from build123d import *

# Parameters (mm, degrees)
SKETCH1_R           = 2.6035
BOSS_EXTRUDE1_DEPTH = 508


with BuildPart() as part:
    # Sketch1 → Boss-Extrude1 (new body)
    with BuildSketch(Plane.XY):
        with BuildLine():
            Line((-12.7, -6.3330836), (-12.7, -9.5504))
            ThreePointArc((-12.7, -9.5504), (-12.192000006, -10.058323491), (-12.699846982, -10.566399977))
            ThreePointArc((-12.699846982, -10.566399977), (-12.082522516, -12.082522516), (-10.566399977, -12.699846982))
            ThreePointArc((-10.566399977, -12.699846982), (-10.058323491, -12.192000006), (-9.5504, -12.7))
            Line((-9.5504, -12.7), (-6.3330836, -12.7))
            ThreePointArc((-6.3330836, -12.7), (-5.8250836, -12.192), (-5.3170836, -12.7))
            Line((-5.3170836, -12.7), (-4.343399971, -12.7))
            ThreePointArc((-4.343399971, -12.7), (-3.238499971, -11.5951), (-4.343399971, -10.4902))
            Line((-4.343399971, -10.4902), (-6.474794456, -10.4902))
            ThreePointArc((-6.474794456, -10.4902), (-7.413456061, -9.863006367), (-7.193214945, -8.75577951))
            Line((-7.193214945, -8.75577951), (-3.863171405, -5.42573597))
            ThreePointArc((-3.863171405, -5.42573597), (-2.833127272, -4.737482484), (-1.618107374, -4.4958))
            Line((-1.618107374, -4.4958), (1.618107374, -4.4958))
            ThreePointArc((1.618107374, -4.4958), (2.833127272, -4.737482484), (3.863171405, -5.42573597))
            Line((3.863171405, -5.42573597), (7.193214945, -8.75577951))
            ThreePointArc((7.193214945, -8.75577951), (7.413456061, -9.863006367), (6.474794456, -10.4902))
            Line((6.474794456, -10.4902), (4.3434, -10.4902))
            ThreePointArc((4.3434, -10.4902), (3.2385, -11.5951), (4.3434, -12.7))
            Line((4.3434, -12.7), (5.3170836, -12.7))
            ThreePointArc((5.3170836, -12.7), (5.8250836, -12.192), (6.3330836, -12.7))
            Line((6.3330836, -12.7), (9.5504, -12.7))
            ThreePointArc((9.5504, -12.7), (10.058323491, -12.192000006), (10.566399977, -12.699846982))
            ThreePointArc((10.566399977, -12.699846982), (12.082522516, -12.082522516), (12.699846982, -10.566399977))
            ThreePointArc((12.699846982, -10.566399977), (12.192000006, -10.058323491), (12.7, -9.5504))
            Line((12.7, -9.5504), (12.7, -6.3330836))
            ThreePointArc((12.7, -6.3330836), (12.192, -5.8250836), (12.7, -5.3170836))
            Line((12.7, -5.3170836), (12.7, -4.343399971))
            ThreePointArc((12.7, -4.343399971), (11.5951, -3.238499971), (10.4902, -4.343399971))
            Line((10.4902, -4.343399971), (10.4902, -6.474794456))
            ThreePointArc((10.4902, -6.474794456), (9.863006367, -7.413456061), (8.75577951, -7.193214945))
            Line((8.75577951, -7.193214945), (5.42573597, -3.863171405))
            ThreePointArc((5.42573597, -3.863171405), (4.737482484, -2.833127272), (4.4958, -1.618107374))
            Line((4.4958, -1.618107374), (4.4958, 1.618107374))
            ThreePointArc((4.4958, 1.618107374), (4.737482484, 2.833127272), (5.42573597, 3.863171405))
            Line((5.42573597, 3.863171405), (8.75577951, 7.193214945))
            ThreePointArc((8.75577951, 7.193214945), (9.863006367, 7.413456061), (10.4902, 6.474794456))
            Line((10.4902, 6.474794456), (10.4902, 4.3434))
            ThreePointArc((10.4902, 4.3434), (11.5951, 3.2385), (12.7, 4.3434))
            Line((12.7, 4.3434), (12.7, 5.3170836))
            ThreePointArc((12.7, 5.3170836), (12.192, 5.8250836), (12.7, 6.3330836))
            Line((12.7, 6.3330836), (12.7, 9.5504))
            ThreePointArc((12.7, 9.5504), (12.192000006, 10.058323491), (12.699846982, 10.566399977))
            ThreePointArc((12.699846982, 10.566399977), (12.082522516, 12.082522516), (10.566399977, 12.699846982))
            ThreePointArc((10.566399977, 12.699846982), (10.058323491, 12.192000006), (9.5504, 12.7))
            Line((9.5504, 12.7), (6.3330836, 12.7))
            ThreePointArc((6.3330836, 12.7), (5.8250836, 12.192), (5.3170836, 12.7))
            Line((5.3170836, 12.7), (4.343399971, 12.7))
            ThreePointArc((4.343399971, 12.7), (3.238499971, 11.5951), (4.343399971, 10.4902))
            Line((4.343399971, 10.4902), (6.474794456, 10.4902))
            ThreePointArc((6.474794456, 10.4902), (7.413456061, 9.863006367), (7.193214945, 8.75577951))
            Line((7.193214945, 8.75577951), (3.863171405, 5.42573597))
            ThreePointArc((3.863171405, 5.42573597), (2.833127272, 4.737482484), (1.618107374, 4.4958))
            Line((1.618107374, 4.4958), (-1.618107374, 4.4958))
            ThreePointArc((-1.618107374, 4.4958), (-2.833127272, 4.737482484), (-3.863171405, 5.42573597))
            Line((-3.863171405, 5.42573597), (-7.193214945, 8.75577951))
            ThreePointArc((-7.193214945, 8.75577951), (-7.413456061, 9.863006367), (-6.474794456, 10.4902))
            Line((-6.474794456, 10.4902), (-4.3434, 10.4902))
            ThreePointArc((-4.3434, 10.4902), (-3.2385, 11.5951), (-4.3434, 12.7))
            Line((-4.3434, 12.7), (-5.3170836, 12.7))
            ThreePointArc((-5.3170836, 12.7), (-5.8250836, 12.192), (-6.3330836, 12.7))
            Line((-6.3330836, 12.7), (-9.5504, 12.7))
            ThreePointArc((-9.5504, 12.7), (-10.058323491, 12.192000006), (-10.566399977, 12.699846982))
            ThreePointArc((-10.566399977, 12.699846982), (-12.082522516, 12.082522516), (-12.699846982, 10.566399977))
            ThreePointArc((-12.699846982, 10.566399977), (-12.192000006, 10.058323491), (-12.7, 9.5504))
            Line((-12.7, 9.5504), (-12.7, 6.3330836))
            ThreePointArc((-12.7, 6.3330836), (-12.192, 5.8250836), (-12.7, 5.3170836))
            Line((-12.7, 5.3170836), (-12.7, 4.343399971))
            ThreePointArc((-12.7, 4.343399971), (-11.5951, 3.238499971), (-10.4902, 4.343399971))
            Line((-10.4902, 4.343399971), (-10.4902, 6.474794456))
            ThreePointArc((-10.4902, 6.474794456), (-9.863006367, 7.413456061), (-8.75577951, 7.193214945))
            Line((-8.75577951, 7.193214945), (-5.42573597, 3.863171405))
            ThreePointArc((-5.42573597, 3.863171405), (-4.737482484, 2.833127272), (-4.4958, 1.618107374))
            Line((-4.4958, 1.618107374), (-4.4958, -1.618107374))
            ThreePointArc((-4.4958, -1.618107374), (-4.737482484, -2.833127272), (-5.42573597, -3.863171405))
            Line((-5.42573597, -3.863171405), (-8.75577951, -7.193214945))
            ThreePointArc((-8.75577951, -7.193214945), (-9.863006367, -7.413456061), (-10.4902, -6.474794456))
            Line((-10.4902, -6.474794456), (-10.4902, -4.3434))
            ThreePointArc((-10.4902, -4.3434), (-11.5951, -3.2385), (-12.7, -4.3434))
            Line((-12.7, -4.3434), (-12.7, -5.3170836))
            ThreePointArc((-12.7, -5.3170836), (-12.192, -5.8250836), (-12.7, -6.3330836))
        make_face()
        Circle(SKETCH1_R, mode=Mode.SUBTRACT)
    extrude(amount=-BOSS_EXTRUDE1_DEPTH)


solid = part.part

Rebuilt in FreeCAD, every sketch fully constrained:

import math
import FreeCAD as App
import Part
import Sketcher
Q = App.Units.Quantity

doc = App.newDocument("Part")
body = doc.addObject("PartDesign::Body", "Body")

# Sketch on XY plane
sketch1 = body.newObject("Sketcher::SketchObject", "Sketch")
sketch1.AttachmentSupport = (doc.getObject("XY_Plane"), [""])
sketch1.MapMode = "FlatFace"
sketch1.addGeometry([
    Part.LineSegment(App.Vector(-12.7, -6.3, 0), App.Vector(-12.7, -9.6, 0)),  # 0
    Part.ArcOfCircle(Part.Circle(App.Vector(-12.7, -10.1, 0), App.Vector(0, 0, 1), 0.5), math.radians(-90), math.radians(90)),  # 1
    Part.ArcOfCircle(Part.Circle(App.Vector(-10.6, -10.6, 0), App.Vector(0, 0, 1), 2.1), math.radians(179), math.radians(271)),  # 2
    Part.ArcOfCircle(Part.Circle(App.Vector(-10.1, -12.7, 0), App.Vector(0, 0, 1), 0.5), math.radians(0), math.radians(180)),  # 3
    Part.LineSegment(App.Vector(-9.6, -12.7, 0), App.Vector(-6.3, -12.7, 0)),  # 4
    Part.ArcOfCircle(Part.Circle(App.Vector(-5.8, -12.7, 0), App.Vector(0, 0, 1), 0.5), math.radians(0), math.radians(180)),  # 5
    Part.LineSegment(App.Vector(-5.3, -12.7, 0), App.Vector(-4.3, -12.7, 0)),  # 6
    Part.ArcOfCircle(Part.Circle(App.Vector(-4.3, -11.6, 0), App.Vector(0, 0, 1), 1.1), math.radians(-90), math.radians(90)),  # 7
    Part.LineSegment(App.Vector(-4.3, -10.5, 0), App.Vector(-6.5, -10.5, 0)),  # 8
    Part.ArcOfCircle(Part.Circle(App.Vector(-6.5, -9.5, 0), App.Vector(0, 0, 1), 1), math.radians(135), math.radians(270)),  # 9
    Part.LineSegment(App.Vector(-7.2, -8.8, 0), App.Vector(-3.9, -5.4, 0)),  # 10
    Part.ArcOfCircle(Part.Circle(App.Vector(-1.6, -7.7, 0), App.Vector(0, 0, 1), 3.2), math.radians(90), math.radians(135)),  # 11
    Part.LineSegment(App.Vector(-1.6, -4.5, 0), App.Vector(1.6, -4.5, 0)),  # 12
    Part.ArcOfCircle(Part.Circle(App.Vector(1.6, -7.7, 0), App.Vector(0, 0, 1), 3.2), math.radians(45), math.radians(90)),  # 13
    Part.LineSegment(App.Vector(3.9, -5.4, 0), App.Vector(7.2, -8.8, 0)),  # 14
    Part.ArcOfCircle(Part.Circle(App.Vector(6.5, -9.5, 0), App.Vector(0, 0, 1), 1), math.radians(-90), math.radians(45)),  # 15
    Part.LineSegment(App.Vector(6.5, -10.5, 0), App.Vector(4.3, -10.5, 0)),  # 16
    Part.ArcOfCircle(Part.Circle(App.Vector(4.3, -11.6, 0), App.Vector(0, 0, 1), 1.1), math.radians(90), math.radians(270)),  # 17
    Part.LineSegment(App.Vector(4.3, -12.7, 0), App.Vector(5.3, -12.7, 0)),  # 18
    Part.ArcOfCircle(Part.Circle(App.Vector(5.8, -12.7, 0), App.Vector(0, 0, 1), 0.5), math.radians(0), math.radians(180)),  # 19
    Part.LineSegment(App.Vector(6.3, -12.7, 0), App.Vector(9.6, -12.7, 0)),  # 20
    Part.ArcOfCircle(Part.Circle(App.Vector(10.1, -12.7, 0), App.Vector(0, 0, 1), 0.5), math.radians(0), math.radians(180)),  # 21
    Part.ArcOfCircle(Part.Circle(App.Vector(10.6, -10.6, 0), App.Vector(0, 0, 1), 2.1), math.radians(-91), math.radians(1)),  # 22
    Part.ArcOfCircle(Part.Circle(App.Vector(12.7, -10.1, 0), App.Vector(0, 0, 1), 0.5), math.radians(90), math.radians(270)),  # 23
    Part.LineSegment(App.Vector(12.7, -9.6, 0), App.Vector(12.7, -6.3, 0)),  # 24
    Part.ArcOfCircle(Part.Circle(App.Vector(12.7, -5.8, 0), App.Vector(0, 0, 1), 0.5), math.radians(90), math.radians(270)),  # 25
    Part.LineSegment(App.Vector(12.7, -5.3, 0), App.Vector(12.7, -4.3, 0)),  # 26
    Part.ArcOfCircle(Part.Circle(App.Vector(11.6, -4.3, 0), App.Vector(0, 0, 1), 1.1), math.radians(0), math.radians(180)),  # 27
    Part.LineSegment(App.Vector(10.5, -4.3, 0), App.Vector(10.5, -6.5, 0)),  # 28
    Part.ArcOfCircle(Part.Circle(App.Vector(9.5, -6.5, 0), App.Vector(0, 0, 1), 1), math.radians(-135), math.radians(0)),  # 29
    Part.LineSegment(App.Vector(8.8, -7.2, 0), App.Vector(5.4, -3.9, 0)),  # 30
    Part.ArcOfCircle(Part.Circle(App.Vector(7.7, -1.6, 0), App.Vector(0, 0, 1), 3.2), math.radians(180), math.radians(225)),  # 31
    Part.LineSegment(App.Vector(4.5, -1.6, 0), App.Vector(4.5, 1.6, 0)),  # 32
    Part.ArcOfCircle(Part.Circle(App.Vector(7.7, 1.6, 0), App.Vector(0, 0, 1), 3.2), math.radians(135), math.radians(180)),  # 33
    Part.LineSegment(App.Vector(5.4, 3.9, 0), App.Vector(8.8, 7.2, 0)),  # 34
    Part.ArcOfCircle(Part.Circle(App.Vector(9.5, 6.5, 0), App.Vector(0, 0, 1), 1), math.radians(0), math.radians(135)),  # 35
    Part.LineSegment(App.Vector(10.5, 6.5, 0), App.Vector(10.5, 4.3, 0)),  # 36
    Part.ArcOfCircle(Part.Circle(App.Vector(11.6, 4.3, 0), App.Vector(0, 0, 1), 1.1), math.radians(180), math.radians(360)),  # 37
    Part.LineSegment(App.Vector(12.7, 4.3, 0), App.Vector(12.7, 5.3, 0)),  # 38
    Part.ArcOfCircle(Part.Circle(App.Vector(12.7, 5.8, 0), App.Vector(0, 0, 1), 0.5), math.radians(90), math.radians(270)),  # 39
    Part.LineSegment(App.Vector(12.7, 6.3, 0), App.Vector(12.7, 9.6, 0)),  # 40
    Part.ArcOfCircle(Part.Circle(App.Vector(12.7, 10.1, 0), App.Vector(0, 0, 1), 0.5), math.radians(90), math.radians(270)),  # 41
    Part.ArcOfCircle(Part.Circle(App.Vector(10.6, 10.6, 0), App.Vector(0, 0, 1), 2.1), math.radians(-1), math.radians(91)),  # 42
    Part.ArcOfCircle(Part.Circle(App.Vector(10.1, 12.7, 0), App.Vector(0, 0, 1), 0.5), math.radians(180), math.radians(360)),  # 43
    Part.LineSegment(App.Vector(9.6, 12.7, 0), App.Vector(6.3, 12.7, 0)),  # 44
    Part.ArcOfCircle(Part.Circle(App.Vector(5.8, 12.7, 0), App.Vector(0, 0, 1), 0.5), math.radians(180), math.radians(360)),  # 45
    Part.LineSegment(App.Vector(5.3, 12.7, 0), App.Vector(4.3, 12.7, 0)),  # 46
    Part.ArcOfCircle(Part.Circle(App.Vector(4.3, 11.6, 0), App.Vector(0, 0, 1), 1.1), math.radians(90), math.radians(270)),  # 47
    Part.LineSegment(App.Vector(4.3, 10.5, 0), App.Vector(6.5, 10.5, 0)),  # 48
    Part.ArcOfCircle(Part.Circle(App.Vector(6.5, 9.5, 0), App.Vector(0, 0, 1), 1), math.radians(-45), math.radians(90)),  # 49
    Part.LineSegment(App.Vector(7.2, 8.8, 0), App.Vector(3.9, 5.4, 0)),  # 50
    Part.ArcOfCircle(Part.Circle(App.Vector(1.6, 7.7, 0), App.Vector(0, 0, 1), 3.2), math.radians(-90), math.radians(-45)),  # 51
    Part.LineSegment(App.Vector(1.6, 4.5, 0), App.Vector(-1.6, 4.5, 0)),  # 52
    Part.ArcOfCircle(Part.Circle(App.Vector(-1.6, 7.7, 0), App.Vector(0, 0, 1), 3.2), math.radians(-135), math.radians(-90)),  # 53
    Part.LineSegment(App.Vector(-3.9, 5.4, 0), App.Vector(-7.2, 8.8, 0)),  # 54
    Part.ArcOfCircle(Part.Circle(App.Vector(-6.5, 9.5, 0), App.Vector(0, 0, 1), 1), math.radians(90), math.radians(225)),  # 55
    Part.LineSegment(App.Vector(-6.5, 10.5, 0), App.Vector(-4.3, 10.5, 0)),  # 56
    Part.ArcOfCircle(Part.Circle(App.Vector(-4.3, 11.6, 0), App.Vector(0, 0, 1), 1.1), math.radians(-90), math.radians(90)),  # 57
    Part.LineSegment(App.Vector(-4.3, 12.7, 0), App.Vector(-5.3, 12.7, 0)),  # 58
    Part.ArcOfCircle(Part.Circle(App.Vector(-5.8, 12.7, 0), App.Vector(0, 0, 1), 0.5), math.radians(180), math.radians(360)),  # 59
    Part.LineSegment(App.Vector(-6.3, 12.7, 0), App.Vector(-9.6, 12.7, 0)),  # 60
    Part.ArcOfCircle(Part.Circle(App.Vector(-10.1, 12.7, 0), App.Vector(0, 0, 1), 0.5), math.radians(-180), math.radians(0)),  # 61
    Part.ArcOfCircle(Part.Circle(App.Vector(-10.6, 10.6, 0), App.Vector(0, 0, 1), 2.1), math.radians(89), math.radians(181)),  # 62
    Part.ArcOfCircle(Part.Circle(App.Vector(-12.7, 10.1, 0), App.Vector(0, 0, 1), 0.5), math.radians(-90), math.radians(90)),  # 63
    Part.LineSegment(App.Vector(-12.7, 9.6, 0), App.Vector(-12.7, 6.3, 0)),  # 64
    Part.ArcOfCircle(Part.Circle(App.Vector(-12.7, 5.8, 0), App.Vector(0, 0, 1), 0.5), math.radians(-90), math.radians(90)),  # 65
    Part.LineSegment(App.Vector(-12.7, 5.3, 0), App.Vector(-12.7, 4.3, 0)),  # 66
    Part.ArcOfCircle(Part.Circle(App.Vector(-11.6, 4.3, 0), App.Vector(0, 0, 1), 1.1), math.radians(180), math.radians(360)),  # 67
    Part.LineSegment(App.Vector(-10.5, 4.3, 0), App.Vector(-10.5, 6.5, 0)),  # 68
    Part.ArcOfCircle(Part.Circle(App.Vector(-9.5, 6.5, 0), App.Vector(0, 0, 1), 1), math.radians(45), math.radians(180)),  # 69
    Part.LineSegment(App.Vector(-8.8, 7.2, 0), App.Vector(-5.4, 3.9, 0)),  # 70
    Part.ArcOfCircle(Part.Circle(App.Vector(-7.7, 1.6, 0), App.Vector(0, 0, 1), 3.2), math.radians(0), math.radians(45)),  # 71
    Part.LineSegment(App.Vector(-4.5, 1.6, 0), App.Vector(-4.5, -1.6, 0)),  # 72
    Part.ArcOfCircle(Part.Circle(App.Vector(-7.7, -1.6, 0), App.Vector(0, 0, 1), 3.2), math.radians(-45), math.radians(0)),  # 73
    Part.LineSegment(App.Vector(-5.4, -3.9, 0), App.Vector(-8.8, -7.2, 0)),  # 74
    Part.ArcOfCircle(Part.Circle(App.Vector(-9.5, -6.5, 0), App.Vector(0, 0, 1), 1), math.radians(180), math.radians(315)),  # 75
    Part.LineSegment(App.Vector(-10.5, -6.5, 0), App.Vector(-10.5, -4.3, 0)),  # 76
    Part.ArcOfCircle(Part.Circle(App.Vector(-11.6, -4.3, 0), App.Vector(0, 0, 1), 1.1), math.radians(0), math.radians(180)),  # 77
    Part.LineSegment(App.Vector(-12.7, -4.3, 0), App.Vector(-12.7, -5.3, 0)),  # 78
    Part.ArcOfCircle(Part.Circle(App.Vector(-12.7, -5.8, 0), App.Vector(0, 0, 1), 0.5), math.radians(-90), math.radians(90)),  # 79
    Part.Circle(App.Vector(0, 0, 0), App.Vector(0, 0, 1), 2.6),  # 80
], False)
sketch1.addConstraint([
    Sketcher.Constraint("Coincident", 0, 2, 1, 2),
    Sketcher.Constraint("Coincident", 1, 1, 2, 1),
    Sketcher.Constraint("Coincident", 2, 2, 3, 2),
    Sketcher.Constraint("Coincident", 3, 1, 4, 1),
    Sketcher.Constraint("Coincident", 4, 2, 5, 2),
    Sketcher.Constraint("Coincident", 5, 1, 6, 1),
    Sketcher.Constraint("Tangent", 6, 2, 7, 1),
    Sketcher.Constraint("Tangent", 7, 2, 8, 1),
    Sketcher.Constraint("Tangent", 8, 2, 9, 2),
    Sketcher.Constraint("Tangent", 9, 1, 10, 1),
    Sketcher.Constraint("Tangent", 10, 2, 11, 2),
    Sketcher.Constraint("Tangent", 11, 1, 12, 1),
    Sketcher.Constraint("Tangent", 12, 2, 13, 2),
    Sketcher.Constraint("Tangent", 13, 1, 14, 1),
    Sketcher.Constraint("Tangent", 14, 2, 15, 2),
    Sketcher.Constraint("Tangent", 15, 1, 16, 1),
    Sketcher.Constraint("Tangent", 16, 2, 17, 1),
    Sketcher.Constraint("Tangent", 17, 2, 18, 1),
    Sketcher.Constraint("Coincident", 18, 2, 19, 2),
    Sketcher.Constraint("Coincident", 19, 1, 20, 1),
    Sketcher.Constraint("Coincident", 20, 2, 21, 2),
    Sketcher.Constraint("Coincident", 21, 1, 22, 1),
    Sketcher.Constraint("Coincident", 22, 2, 23, 2),
    Sketcher.Constraint("Coincident", 23, 1, 24, 1),
    Sketcher.Constraint("Coincident", 24, 2, 25, 2),
    Sketcher.Constraint("Coincident", 25, 1, 26, 1),
    Sketcher.Constraint("Tangent", 26, 2, 27, 1),
    Sketcher.Constraint("Tangent", 27, 2, 28, 1),
    Sketcher.Constraint("Tangent", 28, 2, 29, 2),
    Sketcher.Constraint("Tangent", 29, 1, 30, 1),
    Sketcher.Constraint("Tangent", 30, 2, 31, 2),
    Sketcher.Constraint("Tangent", 31, 1, 32, 1),
    Sketcher.Constraint("Tangent", 32, 2, 33, 2),
    Sketcher.Constraint("Tangent", 33, 1, 34, 1),
    Sketcher.Constraint("Tangent", 34, 2, 35, 2),
    Sketcher.Constraint("Tangent", 35, 1, 36, 1),
    Sketcher.Constraint("Tangent", 36, 2, 37, 1),
    Sketcher.Constraint("Tangent", 37, 2, 38, 1),
    Sketcher.Constraint("Coincident", 38, 2, 39, 2),
    Sketcher.Constraint("Coincident", 39, 1, 40, 1),
    Sketcher.Constraint("Coincident", 40, 2, 41, 2),
    Sketcher.Constraint("Coincident", 41, 1, 42, 1),
    Sketcher.Constraint("Coincident", 42, 2, 43, 2),
    Sketcher.Constraint("Coincident", 43, 1, 44, 1),
    Sketcher.Constraint("Coincident", 44, 2, 45, 2),
    Sketcher.Constraint("Coincident", 45, 1, 46, 1),
    Sketcher.Constraint("Tangent", 46, 2, 47, 1),
    Sketcher.Constraint("Tangent", 47, 2, 48, 1),
    Sketcher.Constraint("Tangent", 48, 2, 49, 2),
    Sketcher.Constraint("Tangent", 49, 1, 50, 1),
    Sketcher.Constraint("Tangent", 50, 2, 51, 2),
    Sketcher.Constraint("Tangent", 51, 1, 52, 1),
    Sketcher.Constraint("Tangent", 52, 2, 53, 2),
    Sketcher.Constraint("Tangent", 53, 1, 54, 1),
    Sketcher.Constraint("Tangent", 54, 2, 55, 2),
    Sketcher.Constraint("Tangent", 55, 1, 56, 1),
    Sketcher.Constraint("Tangent", 56, 2, 57, 1),
    Sketcher.Constraint("Tangent", 57, 2, 58, 1),
    Sketcher.Constraint("Coincident", 58, 2, 59, 2),
    Sketcher.Constraint("Coincident", 59, 1, 60, 1),
    Sketcher.Constraint("Coincident", 60, 2, 61, 2),
    Sketcher.Constraint("Coincident", 61, 1, 62, 1),
    Sketcher.Constraint("Coincident", 62, 2, 63, 2),
    Sketcher.Constraint("Coincident", 63, 1, 64, 1),
    Sketcher.Constraint("Coincident", 64, 2, 65, 2),
    Sketcher.Constraint("Coincident", 65, 1, 66, 1),
    Sketcher.Constraint("Tangent", 66, 2, 67, 1),
    Sketcher.Constraint("Tangent", 67, 2, 68, 1),
    Sketcher.Constraint("Tangent", 68, 2, 69, 2),
    Sketcher.Constraint("Tangent", 69, 1, 70, 1),
    Sketcher.Constraint("Tangent", 70, 2, 71, 2),
    Sketcher.Constraint("Tangent", 71, 1, 72, 1),
    Sketcher.Constraint("Tangent", 72, 2, 73, 2),
    Sketcher.Constraint("Tangent", 73, 1, 74, 1),
    Sketcher.Constraint("Tangent", 74, 2, 75, 2),
    Sketcher.Constraint("Tangent", 75, 1, 76, 1),
    Sketcher.Constraint("Tangent", 76, 2, 77, 1),
    Sketcher.Constraint("Tangent", 77, 2, 78, 1),
    Sketcher.Constraint("Coincident", 78, 2, 79, 2),
    Sketcher.Constraint("Coincident", 79, 1, 0, 1),
    Sketcher.Constraint("Vertical", 0),
    Sketcher.Constraint("Horizontal", 4),
    Sketcher.Constraint("Horizontal", 6),
    Sketcher.Constraint("Horizontal", 8),
    Sketcher.Constraint("Horizontal", 12),
    Sketcher.Constraint("Horizontal", 16),
    Sketcher.Constraint("Horizontal", 18),
    Sketcher.Constraint("Horizontal", 20),
    Sketcher.Constraint("Vertical", 24),
    Sketcher.Constraint("Vertical", 26),
    Sketcher.Constraint("Vertical", 28),
    Sketcher.Constraint("Vertical", 32),
    Sketcher.Constraint("Vertical", 36),
    Sketcher.Constraint("Vertical", 38),
    Sketcher.Constraint("Vertical", 40),
    Sketcher.Constraint("Horizontal", 44),
    Sketcher.Constraint("Horizontal", 46),
    Sketcher.Constraint("Horizontal", 48),
    Sketcher.Constraint("Horizontal", 52),
    Sketcher.Constraint("Horizontal", 56),
    Sketcher.Constraint("Horizontal", 58),
    Sketcher.Constraint("Horizontal", 60),
    Sketcher.Constraint("Vertical", 64),
    Sketcher.Constraint("Vertical", 66),
    Sketcher.Constraint("Vertical", 68),
    Sketcher.Constraint("Vertical", 72),
    Sketcher.Constraint("Vertical", 76),
    Sketcher.Constraint("Vertical", 78),
    Sketcher.Constraint("Coincident", 80, 3, -1, 1),
    Sketcher.Constraint("Equal", 1, 3),
    Sketcher.Constraint("Equal", 3, 5),
    Sketcher.Constraint("Equal", 11, 13),
    Sketcher.Constraint("Equal", 9, 15),
    Sketcher.Constraint("Equal", 7, 17),
    Sketcher.Constraint("Equal", 5, 19),
    Sketcher.Constraint("Equal", 19, 21),
    Sketcher.Constraint("Equal", 2, 22),
    Sketcher.Constraint("Equal", 21, 23),
    Sketcher.Constraint("Equal", 23, 25),
    Sketcher.Constraint("Equal", 17, 27),
    Sketcher.Constraint("Equal", 15, 29),
    Sketcher.Constraint("Equal", 13, 31),
    Sketcher.Constraint("Equal", 31, 33),
    Sketcher.Constraint("Equal", 29, 35),
    Sketcher.Constraint("Equal", 27, 37),
    Sketcher.Constraint("Equal", 25, 39),
    Sketcher.Constraint("Equal", 39, 41),
    Sketcher.Constraint("Equal", 22, 42),
    Sketcher.Constraint("Equal", 41, 43),
    Sketcher.Constraint("Equal", 43, 45),
    Sketcher.Constraint("Equal", 37, 47),
    Sketcher.Constraint("Equal", 35, 49),
    Sketcher.Constraint("Equal", 33, 51),
    Sketcher.Constraint("Equal", 51, 53),
    Sketcher.Constraint("Equal", 49, 55),
    Sketcher.Constraint("Equal", 47, 57),
    Sketcher.Constraint("Equal", 45, 59),
    Sketcher.Constraint("Equal", 59, 61),
    Sketcher.Constraint("Equal", 42, 62),
    Sketcher.Constraint("Equal", 61, 63),
    Sketcher.Constraint("Equal", 63, 65),
    Sketcher.Constraint("Equal", 57, 67),
    Sketcher.Constraint("Equal", 55, 69),
    Sketcher.Constraint("Equal", 53, 71),
    Sketcher.Constraint("Equal", 71, 73),
    Sketcher.Constraint("Equal", 69, 75),
    Sketcher.Constraint("Equal", 67, 77),
    Sketcher.Constraint("Equal", 65, 79),
    Sketcher.Constraint("Symmetric", 1, 3, 41, 3, -1, 1),
    Sketcher.Constraint("Symmetric", 2, 3, 42, 3, -1, 1),
    Sketcher.Constraint("Symmetric", 3, 3, 43, 3, -1, 1),
    Sketcher.Constraint("Symmetric", 5, 3, 45, 3, -1, 1),
    Sketcher.Constraint("Symmetric", 7, 3, 47, 3, -1, 1),
    Sketcher.Constraint("Symmetric", 11, 3, 51, 3, -1, 1),
    Sketcher.Constraint("Symmetric", 15, 3, 55, 3, -1, 1),
    Sketcher.Constraint("Symmetric", 19, 3, 59, 3, -1, 1),
    Sketcher.Constraint("Symmetric", 21, 3, 61, 3, -1, 1),
    Sketcher.Constraint("Symmetric", 22, 3, 62, 3, -1, 1),
    Sketcher.Constraint("Symmetric", 23, 3, 63, 3, -1, 1),
    Sketcher.Constraint("Symmetric", 25, 3, 65, 3, -1, 1),
    Sketcher.Constraint("Symmetric", 27, 3, 67, 3, -1, 1),
    Sketcher.Constraint("Symmetric", 31, 3, 71, 3, -1, 1),
    Sketcher.Constraint("Symmetric", 35, 3, 75, 3, -1, 1),
    Sketcher.Constraint("Symmetric", 39, 3, 79, 3, -1, 1),
    Sketcher.Constraint("Symmetric", 9, 3, 15, 3, -2),
    Sketcher.Constraint("Symmetric", 5, 3, 19, 3, -2),
    Sketcher.Constraint("Symmetric", 3, 3, 21, 3, -2),
    Sketcher.Constraint("Symmetric", 2, 3, 22, 3, -2),
    Sketcher.Constraint("Symmetric", 1, 3, 23, 3, -2),
    Sketcher.Constraint("Symmetric", 39, 3, 65, 3, -2),
    Sketcher.Constraint("Symmetric", 37, 3, 67, 3, -2),
    Sketcher.Constraint("Symmetric", 50, 2, 53, 1, -2),
    Sketcher.Constraint("Symmetric", 34, 2, 69, 1, -2),
    Sketcher.Constraint("Symmetric", 30, 2, 73, 1, -2),
    Sketcher.Constraint("Perpendicular", 10, 14),
    Sketcher.Constraint("Parallel", 14, 30),
    Sketcher.Constraint("Perpendicular", 30, 34),
    Sketcher.Constraint("Horizontal", 3, 3, 5, 3),
    Sketcher.Constraint("Horizontal", 27, 3, 77, 3),
    Sketcher.Constraint("Horizontal", 21, 3, 3, 1),
    Sketcher.Constraint("Horizontal", 4, 2, 5, 1),
    Sketcher.Constraint("Horizontal", 18, 2, 19, 1),
    Sketcher.Constraint("Horizontal", 61, 3, 43, 1),
    Sketcher.Constraint("Horizontal", 58, 2, 59, 1),
    Sketcher.Constraint("Vertical", 23, 3, 25, 3),
    Sketcher.Constraint("Vertical", 17, 3, 47, 3),
    Sketcher.Constraint("Vertical", 7, 3, 57, 3),
    Sketcher.Constraint("Vertical", 79, 3, 0, 2),
    Sketcher.Constraint("Vertical", 41, 3, 23, 1),
    Sketcher.Constraint("Vertical", 24, 2, 25, 1),
    Sketcher.Constraint("Vertical", 38, 2, 39, 1),
    Sketcher.Constraint("Vertical", 0, 2, 63, 1),
    Sketcher.Constraint("Equal", 60, 0),
    Sketcher.Constraint("Equal", 58, 26),
    Sketcher.Constraint("Equal", 56, 28),
    Sketcher.Constraint("Equal", 52, 32),
    Sketcher.Constraint("Equal", 14, 30),
    Sketcher.Constraint("Radius", 1, Q("0.02 in")),
    Sketcher.Constraint("Radius", 9, Q("0.04 in")),
    Sketcher.Constraint("Diameter", 80, Q("0.205 in")),
    Sketcher.Constraint("Radius", 2, Q("0.083 in")),
    Sketcher.Constraint("Radius", 11, Q("0.125 in")),
    Sketcher.Constraint("DistanceX", 1, 3, -1, 1, Q("0.5 in")),
    Sketcher.Constraint("DistanceY", 3, 3, -1, 1, Q("0.5 in")),
    Sketcher.Constraint("Radius", 7, Q("0.0435 in")),
    Sketcher.Constraint("DistanceY", 1, 3, -1, 1, Q("0.396 in")),
    Sketcher.Constraint("DistanceX", 2, 3, -1, 1, Q("0.417 in")),
    Sketcher.Constraint("DistanceY", 2, 3, -1, 1, Q("0.417 in")),
    Sketcher.Constraint("DistanceX", 7, 3, -1, 1, Q("0.171 in")),
    Sketcher.Constraint("DistanceY", 11, 3, -1, 1, Q("0.302 in")),
    Sketcher.Constraint("DistanceX", 4, 1, 4, 2, 3.217316),
    Sketcher.Constraint("DistanceX", 8, 2, 8, 1, 2.131394),
])
pad1 = body.newObject("PartDesign::Pad", "Pad")
pad1.Profile = sketch1
pad1.Length = Q("20 in")
pad1.Reversed = True

doc.recompute()
